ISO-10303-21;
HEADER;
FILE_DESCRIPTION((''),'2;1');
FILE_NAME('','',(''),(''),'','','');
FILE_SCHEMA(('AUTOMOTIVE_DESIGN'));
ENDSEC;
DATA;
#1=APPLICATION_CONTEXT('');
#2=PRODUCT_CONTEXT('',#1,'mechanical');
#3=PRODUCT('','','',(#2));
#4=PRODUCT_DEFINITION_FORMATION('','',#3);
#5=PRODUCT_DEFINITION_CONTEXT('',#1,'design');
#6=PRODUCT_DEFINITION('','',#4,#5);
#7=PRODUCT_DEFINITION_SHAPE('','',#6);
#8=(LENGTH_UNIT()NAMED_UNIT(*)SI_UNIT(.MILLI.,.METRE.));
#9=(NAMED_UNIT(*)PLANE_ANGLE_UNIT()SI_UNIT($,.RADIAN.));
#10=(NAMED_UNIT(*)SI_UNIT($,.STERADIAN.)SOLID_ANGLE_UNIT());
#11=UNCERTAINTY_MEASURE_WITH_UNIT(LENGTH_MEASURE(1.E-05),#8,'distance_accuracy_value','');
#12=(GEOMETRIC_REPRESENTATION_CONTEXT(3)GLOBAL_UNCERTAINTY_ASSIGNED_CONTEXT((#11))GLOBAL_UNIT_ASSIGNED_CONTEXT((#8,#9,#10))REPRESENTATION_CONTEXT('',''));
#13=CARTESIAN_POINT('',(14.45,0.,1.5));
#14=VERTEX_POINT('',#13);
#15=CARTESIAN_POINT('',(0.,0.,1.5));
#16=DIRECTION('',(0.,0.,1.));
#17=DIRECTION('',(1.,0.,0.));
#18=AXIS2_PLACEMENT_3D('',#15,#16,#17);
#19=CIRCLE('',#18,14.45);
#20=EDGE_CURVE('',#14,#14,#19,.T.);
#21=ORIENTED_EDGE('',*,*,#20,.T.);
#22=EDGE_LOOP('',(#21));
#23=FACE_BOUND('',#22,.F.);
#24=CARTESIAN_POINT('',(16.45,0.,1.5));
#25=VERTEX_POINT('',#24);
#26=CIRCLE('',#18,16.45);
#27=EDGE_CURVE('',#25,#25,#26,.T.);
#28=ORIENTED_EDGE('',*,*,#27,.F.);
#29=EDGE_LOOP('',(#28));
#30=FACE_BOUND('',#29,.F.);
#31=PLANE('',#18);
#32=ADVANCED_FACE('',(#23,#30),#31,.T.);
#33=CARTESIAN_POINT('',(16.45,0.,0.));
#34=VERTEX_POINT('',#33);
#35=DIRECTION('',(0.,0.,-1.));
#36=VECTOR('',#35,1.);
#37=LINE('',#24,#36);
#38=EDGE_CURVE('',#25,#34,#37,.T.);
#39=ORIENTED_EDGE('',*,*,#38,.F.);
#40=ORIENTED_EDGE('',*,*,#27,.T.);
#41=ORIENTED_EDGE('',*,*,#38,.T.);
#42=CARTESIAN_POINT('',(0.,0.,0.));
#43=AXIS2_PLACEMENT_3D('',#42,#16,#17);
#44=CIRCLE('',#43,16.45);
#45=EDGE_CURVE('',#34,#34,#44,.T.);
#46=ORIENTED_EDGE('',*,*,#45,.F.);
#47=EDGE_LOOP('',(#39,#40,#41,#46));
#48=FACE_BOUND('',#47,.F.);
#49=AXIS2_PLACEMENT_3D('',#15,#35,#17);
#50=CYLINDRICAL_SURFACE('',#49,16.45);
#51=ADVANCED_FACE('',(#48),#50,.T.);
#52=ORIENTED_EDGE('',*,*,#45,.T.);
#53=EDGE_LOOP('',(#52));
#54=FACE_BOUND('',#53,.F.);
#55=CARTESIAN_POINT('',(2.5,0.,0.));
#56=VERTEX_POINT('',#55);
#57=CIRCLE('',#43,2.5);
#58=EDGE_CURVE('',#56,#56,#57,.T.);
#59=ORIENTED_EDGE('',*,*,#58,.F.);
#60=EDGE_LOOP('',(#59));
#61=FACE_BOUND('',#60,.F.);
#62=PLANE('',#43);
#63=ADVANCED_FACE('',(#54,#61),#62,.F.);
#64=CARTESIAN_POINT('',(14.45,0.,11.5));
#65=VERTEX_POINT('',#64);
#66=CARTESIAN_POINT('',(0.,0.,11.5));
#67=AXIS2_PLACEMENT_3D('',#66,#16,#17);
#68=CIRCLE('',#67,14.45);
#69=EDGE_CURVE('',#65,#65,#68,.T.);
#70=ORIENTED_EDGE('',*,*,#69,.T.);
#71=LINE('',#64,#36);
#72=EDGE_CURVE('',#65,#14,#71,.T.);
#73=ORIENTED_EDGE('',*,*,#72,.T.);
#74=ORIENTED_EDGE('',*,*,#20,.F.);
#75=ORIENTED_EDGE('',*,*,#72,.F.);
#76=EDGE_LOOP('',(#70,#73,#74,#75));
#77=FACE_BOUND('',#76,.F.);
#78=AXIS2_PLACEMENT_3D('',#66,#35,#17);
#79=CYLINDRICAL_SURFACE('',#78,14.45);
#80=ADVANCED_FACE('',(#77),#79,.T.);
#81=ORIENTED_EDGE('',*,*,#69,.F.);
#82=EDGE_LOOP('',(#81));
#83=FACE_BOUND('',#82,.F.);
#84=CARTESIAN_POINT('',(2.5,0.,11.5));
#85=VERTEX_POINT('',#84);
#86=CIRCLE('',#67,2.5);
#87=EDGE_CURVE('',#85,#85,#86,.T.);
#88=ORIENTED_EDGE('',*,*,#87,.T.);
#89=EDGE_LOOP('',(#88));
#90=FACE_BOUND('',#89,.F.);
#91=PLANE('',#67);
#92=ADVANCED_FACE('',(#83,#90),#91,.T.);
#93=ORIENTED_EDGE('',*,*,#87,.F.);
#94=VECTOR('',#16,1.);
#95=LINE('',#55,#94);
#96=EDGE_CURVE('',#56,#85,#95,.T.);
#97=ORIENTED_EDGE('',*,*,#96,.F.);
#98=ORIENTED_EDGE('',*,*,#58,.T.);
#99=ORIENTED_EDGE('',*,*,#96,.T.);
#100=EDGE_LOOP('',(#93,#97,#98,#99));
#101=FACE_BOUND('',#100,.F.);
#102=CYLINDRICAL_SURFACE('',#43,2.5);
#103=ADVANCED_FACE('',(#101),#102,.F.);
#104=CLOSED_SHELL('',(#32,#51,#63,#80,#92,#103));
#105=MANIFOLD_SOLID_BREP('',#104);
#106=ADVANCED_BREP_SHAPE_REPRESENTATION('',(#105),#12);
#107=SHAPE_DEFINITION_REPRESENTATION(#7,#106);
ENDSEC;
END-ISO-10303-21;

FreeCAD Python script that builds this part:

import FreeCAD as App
import Part
import Sketcher
Q = App.Units.Quantity

doc = App.newDocument("Part")
params = doc.addObject("Spreadsheet::Sheet", "Params")
for row, (alias, value) in enumerate([
    ("sketch1_width", "2 mm"),
    ("sketch1_height", "10 mm"),
    ("sketch1_height2", "11.5 mm"),
    ("sketch1_width2", "11.95 mm"),
    ("revolution_angle", "360 deg"),
], start=1):
    params.set(f"A{row}", alias)
    params.set(f"B{row}", "=" + value)
    params.setAlias(f"B{row}", alias)

body = doc.addObject("PartDesign::Body", "Body")

sketch1 = doc.addObject("Sketcher::SketchObject", "Sketch")
body.addObject(sketch1)
sketch1.AttachmentSupport = (doc.XZ_Plane, [""])
sketch1.MapMode = "FlatFace"
sketch1.addGeometry([
    Part.LineSegment(App.Vector(14.4, 11.5, 0), App.Vector(2.5, 11.5, 0)),
    Part.LineSegment(App.Vector(2.5, 11.5, 0), App.Vector(2.5, 0, 0)),
    Part.LineSegment(App.Vector(2.5, 0, 0), App.Vector(16.4, 0, 0)),
    Part.LineSegment(App.Vector(16.4, 0, 0), App.Vector(16.4, 1.5, 0)),
    Part.LineSegment(App.Vector(16.4, 1.5, 0), App.Vector(14.4, 1.5, 0)),
    Part.LineSegment(App.Vector(14.4, 1.5, 0), App.Vector(14.4, 11.5, 0)),
], False)
sketch1.addConstraint([
    Sketcher.Constraint("Coincident", 0, 2, 1, 1),
    Sketcher.Constraint("Coincident", 1, 2, 2, 1),
    Sketcher.Constraint("Coincident", 2, 2, 3, 1),
    Sketcher.Constraint("Coincident", 3, 2, 4, 1),
    Sketcher.Constraint("Coincident", 4, 2, 5, 1),
    Sketcher.Constraint("Coincident", 5, 2, 0, 1),
    Sketcher.Constraint("Horizontal", 0),
    Sketcher.Constraint("Vertical", 1),
    Sketcher.Constraint("Horizontal", 2),
    Sketcher.Constraint("Vertical", 3),
    Sketcher.Constraint("Horizontal", 4),
    Sketcher.Constraint("Vertical", 5),
    Sketcher.Constraint("PointOnObject", 1, 2, -1),
    Sketcher.Constraint("DistanceX", 4, 2, 4, 1, Q("2 mm")),
    Sketcher.Constraint("DistanceY", 5, 1, 5, 2, Q("10 mm")),
    Sketcher.Constraint("DistanceY", 1, 2, 1, 1, Q("11.5 mm")),
    Sketcher.Constraint("DistanceX", 0, 2, 0, 1, Q("11.95 mm")),
    Sketcher.Constraint("DistanceX", -1, 1, 0, 2, Q("2.5 mm")),
])
sketch1.setExpression("Constraints[13]", "Params.sketch1_width")
sketch1.setExpression("Constraints[14]", "Params.sketch1_height")
sketch1.setExpression("Constraints[15]", "Params.sketch1_height2")
sketch1.setExpression("Constraints[16]", "Params.sketch1_width2")
revolution = doc.addObject("PartDesign::Revolution", "Revolution")
body.addObject(revolution)
revolution.Profile = sketch1
revolution.ReferenceAxis = (sketch1, ["V_Axis"])
revolution.setExpression("Angle", "Params.revolution_angle")

doc.recompute()
